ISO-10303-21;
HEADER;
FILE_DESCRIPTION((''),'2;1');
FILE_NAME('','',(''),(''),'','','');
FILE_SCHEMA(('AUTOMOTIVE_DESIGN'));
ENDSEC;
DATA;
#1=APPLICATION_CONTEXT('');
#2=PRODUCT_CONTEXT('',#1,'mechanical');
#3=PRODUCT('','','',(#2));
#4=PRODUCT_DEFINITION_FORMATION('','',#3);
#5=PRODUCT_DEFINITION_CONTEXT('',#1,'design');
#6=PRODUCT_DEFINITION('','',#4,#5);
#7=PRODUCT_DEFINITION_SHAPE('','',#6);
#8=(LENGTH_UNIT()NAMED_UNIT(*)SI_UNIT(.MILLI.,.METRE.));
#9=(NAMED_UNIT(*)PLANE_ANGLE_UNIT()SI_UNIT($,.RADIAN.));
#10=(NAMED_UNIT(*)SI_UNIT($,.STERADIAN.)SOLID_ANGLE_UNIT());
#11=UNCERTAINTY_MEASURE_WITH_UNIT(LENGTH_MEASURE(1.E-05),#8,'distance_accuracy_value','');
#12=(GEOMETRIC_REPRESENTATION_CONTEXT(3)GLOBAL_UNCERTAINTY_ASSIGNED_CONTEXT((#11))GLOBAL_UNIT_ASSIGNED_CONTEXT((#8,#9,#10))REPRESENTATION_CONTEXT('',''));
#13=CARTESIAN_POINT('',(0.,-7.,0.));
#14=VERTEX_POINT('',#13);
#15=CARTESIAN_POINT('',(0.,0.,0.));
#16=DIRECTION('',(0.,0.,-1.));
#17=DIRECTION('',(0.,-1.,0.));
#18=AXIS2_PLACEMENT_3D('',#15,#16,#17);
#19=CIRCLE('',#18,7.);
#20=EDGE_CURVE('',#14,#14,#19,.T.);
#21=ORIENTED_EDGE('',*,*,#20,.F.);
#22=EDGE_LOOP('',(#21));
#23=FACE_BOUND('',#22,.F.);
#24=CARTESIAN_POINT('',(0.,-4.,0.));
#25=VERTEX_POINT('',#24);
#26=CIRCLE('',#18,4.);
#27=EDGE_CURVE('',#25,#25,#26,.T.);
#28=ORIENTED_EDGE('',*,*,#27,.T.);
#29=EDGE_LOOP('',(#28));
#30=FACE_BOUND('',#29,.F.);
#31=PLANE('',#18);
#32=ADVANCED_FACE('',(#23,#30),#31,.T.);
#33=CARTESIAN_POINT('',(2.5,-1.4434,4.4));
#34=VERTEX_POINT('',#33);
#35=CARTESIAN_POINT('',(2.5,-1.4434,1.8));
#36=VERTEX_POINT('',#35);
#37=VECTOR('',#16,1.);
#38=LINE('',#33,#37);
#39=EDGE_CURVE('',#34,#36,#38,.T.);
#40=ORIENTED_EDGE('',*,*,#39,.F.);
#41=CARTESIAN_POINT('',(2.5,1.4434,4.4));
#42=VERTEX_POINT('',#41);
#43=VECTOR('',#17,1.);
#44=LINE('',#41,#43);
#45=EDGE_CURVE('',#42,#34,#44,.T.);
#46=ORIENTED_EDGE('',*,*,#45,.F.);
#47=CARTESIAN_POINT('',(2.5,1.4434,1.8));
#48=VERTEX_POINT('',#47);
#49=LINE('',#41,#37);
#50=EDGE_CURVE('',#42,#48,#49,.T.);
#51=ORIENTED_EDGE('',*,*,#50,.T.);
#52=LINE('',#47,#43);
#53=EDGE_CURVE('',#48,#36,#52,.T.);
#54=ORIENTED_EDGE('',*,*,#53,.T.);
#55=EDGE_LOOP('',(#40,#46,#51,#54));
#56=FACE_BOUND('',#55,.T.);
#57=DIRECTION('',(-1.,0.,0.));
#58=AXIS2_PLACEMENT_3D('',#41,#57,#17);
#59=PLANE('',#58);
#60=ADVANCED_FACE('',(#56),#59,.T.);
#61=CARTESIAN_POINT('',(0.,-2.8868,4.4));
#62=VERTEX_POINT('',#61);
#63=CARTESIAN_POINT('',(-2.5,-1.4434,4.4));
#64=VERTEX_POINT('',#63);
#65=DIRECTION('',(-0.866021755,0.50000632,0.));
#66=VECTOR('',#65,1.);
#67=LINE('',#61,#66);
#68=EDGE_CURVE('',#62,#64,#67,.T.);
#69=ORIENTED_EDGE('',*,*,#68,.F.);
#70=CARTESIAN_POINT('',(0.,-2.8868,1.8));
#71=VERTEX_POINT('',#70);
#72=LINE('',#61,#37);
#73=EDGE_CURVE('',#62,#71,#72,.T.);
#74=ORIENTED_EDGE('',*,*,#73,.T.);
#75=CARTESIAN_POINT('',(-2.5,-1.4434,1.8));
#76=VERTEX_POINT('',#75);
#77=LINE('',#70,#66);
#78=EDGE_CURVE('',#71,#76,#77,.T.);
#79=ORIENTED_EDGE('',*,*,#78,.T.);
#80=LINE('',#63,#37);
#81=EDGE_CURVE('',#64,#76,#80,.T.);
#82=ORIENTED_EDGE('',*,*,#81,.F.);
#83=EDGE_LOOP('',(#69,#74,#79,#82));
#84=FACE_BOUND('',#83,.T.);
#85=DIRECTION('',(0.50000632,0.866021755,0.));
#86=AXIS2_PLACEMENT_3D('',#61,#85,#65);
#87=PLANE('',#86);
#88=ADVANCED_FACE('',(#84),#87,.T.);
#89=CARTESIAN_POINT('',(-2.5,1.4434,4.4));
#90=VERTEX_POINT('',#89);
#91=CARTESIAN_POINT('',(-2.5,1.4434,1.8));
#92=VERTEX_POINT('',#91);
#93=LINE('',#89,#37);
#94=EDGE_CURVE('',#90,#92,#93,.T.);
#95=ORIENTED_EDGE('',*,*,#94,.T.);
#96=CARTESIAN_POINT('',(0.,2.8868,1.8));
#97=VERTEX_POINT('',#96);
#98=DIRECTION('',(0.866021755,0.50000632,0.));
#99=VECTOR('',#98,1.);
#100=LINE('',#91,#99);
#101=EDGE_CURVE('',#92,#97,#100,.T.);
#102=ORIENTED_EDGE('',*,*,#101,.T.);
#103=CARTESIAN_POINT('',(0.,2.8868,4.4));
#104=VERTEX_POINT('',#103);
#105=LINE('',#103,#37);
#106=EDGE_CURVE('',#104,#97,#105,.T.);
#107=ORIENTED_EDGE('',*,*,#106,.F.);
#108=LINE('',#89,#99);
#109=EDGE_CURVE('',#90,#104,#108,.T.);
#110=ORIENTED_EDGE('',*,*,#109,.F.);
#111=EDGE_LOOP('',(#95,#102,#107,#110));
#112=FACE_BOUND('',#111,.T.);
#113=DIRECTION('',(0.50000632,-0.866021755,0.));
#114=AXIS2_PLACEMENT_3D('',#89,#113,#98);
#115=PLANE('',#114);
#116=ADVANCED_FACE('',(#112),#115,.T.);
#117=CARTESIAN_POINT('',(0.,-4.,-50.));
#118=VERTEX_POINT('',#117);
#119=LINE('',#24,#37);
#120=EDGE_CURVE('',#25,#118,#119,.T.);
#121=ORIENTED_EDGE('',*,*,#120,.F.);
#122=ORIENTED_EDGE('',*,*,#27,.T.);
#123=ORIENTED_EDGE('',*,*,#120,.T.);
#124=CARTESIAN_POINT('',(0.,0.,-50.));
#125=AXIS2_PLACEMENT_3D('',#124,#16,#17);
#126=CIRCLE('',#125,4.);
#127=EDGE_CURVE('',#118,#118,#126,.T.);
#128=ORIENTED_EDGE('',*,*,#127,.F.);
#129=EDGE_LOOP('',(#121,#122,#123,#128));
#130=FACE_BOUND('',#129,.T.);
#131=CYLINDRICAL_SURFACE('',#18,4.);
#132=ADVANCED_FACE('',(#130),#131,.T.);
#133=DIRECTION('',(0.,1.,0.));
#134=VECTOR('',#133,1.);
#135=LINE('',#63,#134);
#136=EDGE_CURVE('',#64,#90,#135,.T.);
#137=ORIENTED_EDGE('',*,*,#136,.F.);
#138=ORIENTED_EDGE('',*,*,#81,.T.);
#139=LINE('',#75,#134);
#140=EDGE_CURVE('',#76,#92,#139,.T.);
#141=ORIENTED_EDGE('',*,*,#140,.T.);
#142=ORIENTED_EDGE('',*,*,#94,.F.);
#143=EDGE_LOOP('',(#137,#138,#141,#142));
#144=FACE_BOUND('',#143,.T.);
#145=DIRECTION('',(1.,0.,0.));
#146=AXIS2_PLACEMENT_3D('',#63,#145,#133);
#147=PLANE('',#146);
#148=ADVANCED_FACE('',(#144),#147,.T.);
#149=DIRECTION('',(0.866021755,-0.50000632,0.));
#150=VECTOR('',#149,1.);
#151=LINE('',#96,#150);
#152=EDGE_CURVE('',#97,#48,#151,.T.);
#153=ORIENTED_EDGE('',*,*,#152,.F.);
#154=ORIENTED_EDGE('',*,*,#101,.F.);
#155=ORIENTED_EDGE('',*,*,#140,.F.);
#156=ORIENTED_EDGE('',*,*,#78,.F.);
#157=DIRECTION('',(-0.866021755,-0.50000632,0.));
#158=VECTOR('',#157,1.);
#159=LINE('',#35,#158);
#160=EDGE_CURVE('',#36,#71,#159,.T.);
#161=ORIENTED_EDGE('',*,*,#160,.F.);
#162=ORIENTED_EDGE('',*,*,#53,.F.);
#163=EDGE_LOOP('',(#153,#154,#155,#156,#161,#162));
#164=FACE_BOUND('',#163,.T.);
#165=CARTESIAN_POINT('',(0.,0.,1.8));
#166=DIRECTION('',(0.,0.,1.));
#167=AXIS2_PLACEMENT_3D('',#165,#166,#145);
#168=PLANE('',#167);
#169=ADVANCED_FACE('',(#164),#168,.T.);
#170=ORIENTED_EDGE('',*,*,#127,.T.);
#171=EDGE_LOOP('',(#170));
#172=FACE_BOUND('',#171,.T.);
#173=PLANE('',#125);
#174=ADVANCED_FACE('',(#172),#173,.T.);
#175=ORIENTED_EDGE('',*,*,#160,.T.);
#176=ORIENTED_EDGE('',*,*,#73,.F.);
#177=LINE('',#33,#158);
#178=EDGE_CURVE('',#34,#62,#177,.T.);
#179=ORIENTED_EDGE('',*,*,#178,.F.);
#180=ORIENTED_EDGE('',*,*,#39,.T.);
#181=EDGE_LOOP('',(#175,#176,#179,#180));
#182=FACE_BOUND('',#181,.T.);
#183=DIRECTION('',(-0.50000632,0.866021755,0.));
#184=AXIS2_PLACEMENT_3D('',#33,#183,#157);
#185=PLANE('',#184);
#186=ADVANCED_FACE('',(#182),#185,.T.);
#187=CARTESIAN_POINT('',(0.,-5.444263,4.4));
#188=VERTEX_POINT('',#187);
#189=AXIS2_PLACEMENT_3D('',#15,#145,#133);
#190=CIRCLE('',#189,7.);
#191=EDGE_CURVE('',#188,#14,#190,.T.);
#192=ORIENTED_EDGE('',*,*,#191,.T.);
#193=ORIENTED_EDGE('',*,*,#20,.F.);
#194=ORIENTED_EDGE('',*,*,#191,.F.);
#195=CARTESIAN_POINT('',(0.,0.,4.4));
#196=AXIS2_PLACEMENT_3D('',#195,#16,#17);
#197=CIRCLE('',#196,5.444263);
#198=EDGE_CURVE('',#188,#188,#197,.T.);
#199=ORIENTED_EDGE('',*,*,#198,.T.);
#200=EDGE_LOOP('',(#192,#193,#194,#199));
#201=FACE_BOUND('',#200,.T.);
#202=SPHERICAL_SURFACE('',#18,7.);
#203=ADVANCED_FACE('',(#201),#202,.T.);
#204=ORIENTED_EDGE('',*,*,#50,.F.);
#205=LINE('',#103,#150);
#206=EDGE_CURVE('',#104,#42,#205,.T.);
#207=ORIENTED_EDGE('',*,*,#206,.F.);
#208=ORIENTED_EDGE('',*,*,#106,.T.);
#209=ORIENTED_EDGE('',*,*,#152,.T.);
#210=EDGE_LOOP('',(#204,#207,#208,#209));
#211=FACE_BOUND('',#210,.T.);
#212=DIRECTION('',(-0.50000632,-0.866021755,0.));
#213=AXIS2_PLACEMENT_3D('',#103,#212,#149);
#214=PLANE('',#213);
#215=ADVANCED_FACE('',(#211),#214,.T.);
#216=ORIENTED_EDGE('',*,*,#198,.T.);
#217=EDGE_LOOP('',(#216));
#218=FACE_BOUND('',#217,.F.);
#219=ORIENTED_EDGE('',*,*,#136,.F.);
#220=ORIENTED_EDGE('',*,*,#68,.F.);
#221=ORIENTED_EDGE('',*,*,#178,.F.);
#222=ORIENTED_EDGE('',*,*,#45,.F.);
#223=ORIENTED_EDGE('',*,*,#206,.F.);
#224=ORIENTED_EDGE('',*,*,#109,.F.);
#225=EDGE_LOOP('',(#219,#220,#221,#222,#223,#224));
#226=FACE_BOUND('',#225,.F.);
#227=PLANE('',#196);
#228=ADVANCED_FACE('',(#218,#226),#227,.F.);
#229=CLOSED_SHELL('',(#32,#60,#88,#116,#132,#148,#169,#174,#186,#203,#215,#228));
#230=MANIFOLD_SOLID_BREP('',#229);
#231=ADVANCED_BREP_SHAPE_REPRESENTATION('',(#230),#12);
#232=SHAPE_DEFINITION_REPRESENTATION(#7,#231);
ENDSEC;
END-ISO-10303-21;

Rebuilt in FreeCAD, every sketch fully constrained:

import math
import FreeCAD as App
import Part
import Sketcher
from FreeCAD import Vector
Q = App.Units.Quantity


def add_polygon(sketch, points):
    """Adds a closed chain of lines whose ends are joined by coincident constraints."""
    first, n = sketch.GeometryCount, len(points)
    for a, b in zip(points, points[1:] + points[:1]):
        sketch.addGeometry(Part.LineSegment(App.Vector(*a, 0), App.Vector(*b, 0)), False)
    for i in range(n):
        sketch.addConstraint(Sketcher.Constraint("Coincident", first + i, 2, first + (i + 1) % n, 1))

doc = App.newDocument("Part")
body = doc.addObject("PartDesign::Body", "Body")

# Sketch on YZ plane
sketch1 = body.newObject("Sketcher::SketchObject", "Sketch")
sketch1.AttachmentSupport = (doc.getObject("YZ_Plane"), [""])
sketch1.MapMode = "FlatFace"
sketch1.addGeometry(Part.LineSegment(Vector(0, 4.4, 0), Vector(-5.4, 4.4, 0)), False)
sketch1.addGeometry(Part.ArcOfCircle(Part.Circle(Vector(0, 0, 0), Vector(0, 0, 1), 7), math.radians(141), math.radians(180)), False)
sketch1.addGeometry(Part.LineSegment(Vector(-7, 0, 0), Vector(-4, 0, 0)), False)
sketch1.addGeometry(Part.LineSegment(Vector(-4, 0, 0), Vector(-4, -50, 0)), False)
sketch1.addGeometry(Part.LineSegment(Vector(-4, -50, 0), Vector(0, -50, 0)), False)
sketch1.addGeometry(Part.LineSegment(Vector(0, -50, 0), Vector(0, 4.4, 0)), False)
sketch1.addConstraint(Sketcher.Constraint("Coincident", 0, 2, 1, 1))
sketch1.addConstraint(Sketcher.Constraint("Coincident", 1, 2, 2, 1))
sketch1.addConstraint(Sketcher.Constraint("Coincident", 2, 2, 3, 1))
sketch1.addConstraint(Sketcher.Constraint("Coincident", 3, 2, 4, 1))
sketch1.addConstraint(Sketcher.Constraint("Coincident", 4, 2, 5, 1))
sketch1.addConstraint(Sketcher.Constraint("Coincident", 5, 2, 0, 1))
sketch1.addConstraint(Sketcher.Constraint("Horizontal", 0))
sketch1.addConstraint(Sketcher.Constraint("Horizontal", 2))
sketch1.addConstraint(Sketcher.Constraint("Vertical", 3))
sketch1.addConstraint(Sketcher.Constraint("Horizontal", 4))
sketch1.addConstraint(Sketcher.Constraint("Vertical", 5))
sketch1.addConstraint(Sketcher.Constraint("Coincident", 1, 3, -1, 1))
sketch1.addConstraint(Sketcher.Constraint("PointOnObject", 1, 2, -1))
sketch1.addConstraint(Sketcher.Constraint("PointOnObject", 4, 2, -2))
sketch1.addConstraint(Sketcher.Constraint("Radius", 1, 7.0))
sketch1.addConstraint(Sketcher.Constraint("DistanceX", 4, 1, 4, 2, 4.0))
sketch1.addConstraint(Sketcher.Constraint("DistanceY", 3, 2, 3, 1, 50.0))
sketch1.addConstraint(Sketcher.Constraint("DistanceY", -1, 1, 0, 2, 4.4))
revolution = body.newObject("PartDesign::Revolution", "Revolution")
revolution.Profile = sketch1
revolution.ReferenceAxis = (sketch1, ["V_Axis"])
revolution.Angle = 360

# Sketch on XY plane
sketch2 = body.newObject("Sketcher::SketchObject", "Sketch001")
sketch2.AttachmentSupport = (doc.getObject("XY_Plane"), [""])
sketch2.MapMode = "FlatFace"
sketch2.AttachmentOffset = App.Placement(Vector(0, 0, 4.4), App.Rotation())
add_polygon(sketch2, [(0, -2.9), (2.5, -1.4), (2.5, 1.4), (0, 2.9), (-2.5, 1.4), (-2.5, -1.4)])  # lines 0-5
sketch2.addConstraint(Sketcher.Constraint("Vertical", 1))
sketch2.addConstraint(Sketcher.Constraint("Vertical", 4))
sketch2.addConstraint(Sketcher.Constraint("Symmetric", 0, 2, 3, 2, -1, 1))
sketch2.addConstraint(Sketcher.Constraint("Symmetric", 2, 2, 5, 2, -1, 1))
sketch2.addConstraint(Sketcher.Constraint("PointOnObject", 2, 2, -2))
sketch2.addConstraint(Sketcher.Constraint("Parallel", 2, 5))
sketch2.addConstraint(Sketcher.Constraint("Horizontal", 1, 2, 3, 2))
sketch2.addConstraint(Sketcher.Constraint("DistanceX", 3, 2, 1, 2, 5.0))
sketch2.addConstraint(Sketcher.Constraint("Angle", 0, Q("30.0004 deg")))
sketch2.addConstraint(Sketcher.Constraint("DistanceY", 1, 1, 1, 2, 2.8868))
pocket1 = body.newObject("PartDesign::Pocket", "Pocket")
pocket1.Profile = sketch2
pocket1.Length = 2.6

doc.recompute()
